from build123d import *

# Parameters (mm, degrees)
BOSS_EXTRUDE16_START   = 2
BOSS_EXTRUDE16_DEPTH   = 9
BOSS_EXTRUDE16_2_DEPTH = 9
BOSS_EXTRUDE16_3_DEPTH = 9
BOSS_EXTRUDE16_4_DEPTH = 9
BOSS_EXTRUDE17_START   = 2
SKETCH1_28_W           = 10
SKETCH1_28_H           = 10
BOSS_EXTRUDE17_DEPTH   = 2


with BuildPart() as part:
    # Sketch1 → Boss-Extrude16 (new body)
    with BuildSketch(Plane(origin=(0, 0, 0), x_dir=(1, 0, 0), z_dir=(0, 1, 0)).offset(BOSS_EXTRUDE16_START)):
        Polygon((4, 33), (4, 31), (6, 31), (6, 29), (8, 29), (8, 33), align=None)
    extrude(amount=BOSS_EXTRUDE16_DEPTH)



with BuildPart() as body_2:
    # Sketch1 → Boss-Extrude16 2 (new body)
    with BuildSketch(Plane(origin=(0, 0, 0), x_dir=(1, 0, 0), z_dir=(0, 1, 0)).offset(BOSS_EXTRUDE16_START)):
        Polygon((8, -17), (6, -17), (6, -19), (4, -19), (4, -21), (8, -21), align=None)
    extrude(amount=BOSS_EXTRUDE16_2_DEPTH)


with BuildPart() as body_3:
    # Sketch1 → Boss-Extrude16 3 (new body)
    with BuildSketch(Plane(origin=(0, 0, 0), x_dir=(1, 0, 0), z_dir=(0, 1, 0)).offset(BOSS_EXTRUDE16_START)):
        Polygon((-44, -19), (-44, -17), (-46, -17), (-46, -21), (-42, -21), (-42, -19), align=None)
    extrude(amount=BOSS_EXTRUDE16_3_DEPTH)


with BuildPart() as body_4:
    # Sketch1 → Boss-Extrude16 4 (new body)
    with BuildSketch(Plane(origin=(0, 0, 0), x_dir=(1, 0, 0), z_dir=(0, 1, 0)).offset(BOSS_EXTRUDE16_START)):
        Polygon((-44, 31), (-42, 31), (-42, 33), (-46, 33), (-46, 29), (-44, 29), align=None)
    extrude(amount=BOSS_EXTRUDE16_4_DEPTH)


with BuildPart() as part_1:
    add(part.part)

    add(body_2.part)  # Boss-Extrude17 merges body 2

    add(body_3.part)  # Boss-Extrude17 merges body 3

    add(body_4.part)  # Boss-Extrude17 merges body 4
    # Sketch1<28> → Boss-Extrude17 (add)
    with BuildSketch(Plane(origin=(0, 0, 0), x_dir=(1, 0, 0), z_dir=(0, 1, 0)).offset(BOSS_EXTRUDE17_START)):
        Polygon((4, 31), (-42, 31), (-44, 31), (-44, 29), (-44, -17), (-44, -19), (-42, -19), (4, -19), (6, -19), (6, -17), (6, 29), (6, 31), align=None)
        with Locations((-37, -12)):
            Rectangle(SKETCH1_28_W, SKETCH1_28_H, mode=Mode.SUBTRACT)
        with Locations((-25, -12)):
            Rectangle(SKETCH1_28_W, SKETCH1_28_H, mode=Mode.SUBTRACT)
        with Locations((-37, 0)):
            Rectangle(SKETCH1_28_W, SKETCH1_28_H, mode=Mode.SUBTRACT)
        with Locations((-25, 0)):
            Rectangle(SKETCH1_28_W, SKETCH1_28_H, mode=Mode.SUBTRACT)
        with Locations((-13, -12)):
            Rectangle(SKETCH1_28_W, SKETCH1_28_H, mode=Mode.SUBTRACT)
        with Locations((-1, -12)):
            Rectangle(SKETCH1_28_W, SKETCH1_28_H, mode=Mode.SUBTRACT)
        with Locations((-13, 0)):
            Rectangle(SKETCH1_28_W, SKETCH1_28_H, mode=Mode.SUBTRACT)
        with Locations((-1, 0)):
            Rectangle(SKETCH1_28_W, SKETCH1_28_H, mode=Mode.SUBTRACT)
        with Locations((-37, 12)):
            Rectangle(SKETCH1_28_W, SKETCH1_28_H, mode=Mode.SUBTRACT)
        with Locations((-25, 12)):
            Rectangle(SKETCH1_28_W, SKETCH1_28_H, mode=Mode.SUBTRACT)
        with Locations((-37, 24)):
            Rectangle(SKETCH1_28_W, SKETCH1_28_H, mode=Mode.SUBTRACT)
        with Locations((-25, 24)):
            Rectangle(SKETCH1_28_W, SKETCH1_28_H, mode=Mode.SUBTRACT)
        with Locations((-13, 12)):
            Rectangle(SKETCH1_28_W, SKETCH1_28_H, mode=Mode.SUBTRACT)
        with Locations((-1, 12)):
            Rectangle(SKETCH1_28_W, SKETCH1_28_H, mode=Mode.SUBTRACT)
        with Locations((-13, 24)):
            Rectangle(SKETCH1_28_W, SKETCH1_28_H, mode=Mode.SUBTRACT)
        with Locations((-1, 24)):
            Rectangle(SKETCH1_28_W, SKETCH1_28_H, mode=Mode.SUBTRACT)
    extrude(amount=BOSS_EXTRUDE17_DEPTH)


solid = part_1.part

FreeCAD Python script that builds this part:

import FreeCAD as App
import Part
import Sketcher

V = App.Vector

doc = App.newDocument("Part")
body = doc.addObject("PartDesign::Body", "Body")

# Sketch on XZ plane
sketch1 = body.newObject("Sketcher::SketchObject", "Sketch")
sketch1.AttachmentSupport = (doc.getObject("XZ_Plane"), [""])
sketch1.MapMode = "FlatFace"
sketch1.AttachmentOffset = App.Placement(V(0, 0, -2), App.Rotation())
sketch1.addGeometry([
    Part.LineSegment(V(4, -33, 0), V(4, -31, 0)),  # 0
    Part.LineSegment(V(4, -31, 0), V(6, -31, 0)),  # 1
    Part.LineSegment(V(6, -31, 0), V(6, -29, 0)),  # 2
    Part.LineSegment(V(6, -29, 0), V(8, -29, 0)),  # 3
    Part.LineSegment(V(8, -29, 0), V(8, -33, 0)),  # 4
    Part.LineSegment(V(8, -33, 0), V(4, -33, 0)),  # 5
], False)
sketch1.addConstraint([
    Sketcher.Constraint("Coincident", 0, 2, 1, 1),
    Sketcher.Constraint("Coincident", 1, 2, 2, 1),
    Sketcher.Constraint("Coincident", 2, 2, 3, 1),
    Sketcher.Constraint("Coincident", 3, 2, 4, 1),
    Sketcher.Constraint("Coincident", 4, 2, 5, 1),
    Sketcher.Constraint("Coincident", 5, 2, 0, 1),
    Sketcher.Constraint("Vertical", 0),
    Sketcher.Constraint("Horizontal", 1),
    Sketcher.Constraint("Vertical", 2),
    Sketcher.Constraint("Horizontal", 3),
    Sketcher.Constraint("Vertical", 4),
    Sketcher.Constraint("Horizontal", 5),
    Sketcher.Constraint("Equal", 1, 3),
    Sketcher.Constraint("Equal", 3, 0),
    Sketcher.Constraint("Equal", 0, 2),
    Sketcher.Constraint("DistanceX", 1, 1, 1, 2, 2.0),
    Sketcher.Constraint("DistanceX", -1, 1, 0, 2, 4.0),
    Sketcher.Constraint("DistanceY", 0, 2, -1, 1, 31.0),
])
pad1 = body.newObject("PartDesign::Pad", "Pad")
pad1.Profile = sketch1
pad1.Length = 9
pad1.Reversed = True
body2 = doc.addObject("PartDesign::Body", "Body001")

# Sketch on XZ plane
sketch2 = body2.newObject("Sketcher::SketchObject", "Sketch001")
sketch2.AttachmentSupport = (doc.getObject("XZ_Plane001"), [""])
sketch2.MapMode = "FlatFace"
sketch2.AttachmentOffset = App.Placement(V(0, 0, -2), App.Rotation())
sketch2.addGeometry([
    Part.LineSegment(V(8, 17, 0), V(6, 17, 0)),  # 0
    Part.LineSegment(V(6, 17, 0), V(6, 19, 0)),  # 1
    Part.LineSegment(V(6, 19, 0), V(4, 19, 0)),  # 2
    Part.LineSegment(V(4, 19, 0), V(4, 21, 0)),  # 3
    Part.LineSegment(V(4, 21, 0), V(8, 21, 0)),  # 4
    Part.LineSegment(V(8, 21, 0), V(8, 17, 0)),  # 5
], False)
sketch2.addConstraint([
    Sketcher.Constraint("Coincident", 0, 2, 1, 1),
    Sketcher.Constraint("Coincident", 1, 2, 2, 1),
    Sketcher.Constraint("Coincident", 2, 2, 3, 1),
    Sketcher.Constraint("Coincident", 3, 2, 4, 1),
    Sketcher.Constraint("Coincident", 4, 2, 5, 1),
    Sketcher.Constraint("Coincident", 5, 2, 0, 1),
    Sketcher.Constraint("Horizontal", 0),
    Sketcher.Constraint("Vertical", 1),
    Sketcher.Constraint("Horizontal", 2),
    Sketcher.Constraint("Vertical", 3),
    Sketcher.Constraint("Horizontal", 4),
    Sketcher.Constraint("Vertical", 5),
    Sketcher.Constraint("Equal", 0, 2),
    Sketcher.Constraint("Equal", 2, 1),
    Sketcher.Constraint("Equal", 1, 3),
    Sketcher.Constraint("DistanceX", 0, 2, 0, 1, 2.0),
    Sketcher.Constraint("DistanceX", -1, 1, 0, 2, 6.0),
    Sketcher.Constraint("DistanceY", -1, 1, 0, 2, 17.0),
])
pad2 = body2.newObject("PartDesign::Pad", "Pad001")
pad2.Profile = sketch2
pad2.Length = 9
pad2.Reversed = True
body3 = doc.addObject("PartDesign::Body", "Body002")

# Sketch on XZ plane
sketch3 = body3.newObject("Sketcher::SketchObject", "Sketch002")
sketch3.AttachmentSupport = (doc.getObject("XZ_Plane002"), [""])
sketch3.MapMode = "FlatFace"
sketch3.AttachmentOffset = App.Placement(V(0, 0, -2), App.Rotation())
sketch3.addGeometry([
    Part.LineSegment(V(-44, 19, 0), V(-44, 17, 0)),  # 0
    Part.LineSegment(V(-44, 17, 0), V(-46, 17, 0)),  # 1
    Part.LineSegment(V(-46, 17, 0), V(-46, 21, 0)),  # 2
    Part.LineSegment(V(-46, 21, 0), V(-42, 21, 0)),  # 3
    Part.LineSegment(V(-42, 21, 0), V(-42, 19, 0)),  # 4
    Part.LineSegment(V(-42, 19, 0), V(-44, 19, 0)),  # 5
], False)
sketch3.addConstraint([
    Sketcher.Constraint("Coincident", 0, 2, 1, 1),
    Sketcher.Constraint("Coincident", 1, 2, 2, 1),
    Sketcher.Constraint("Coincident", 2, 2, 3, 1),
    Sketcher.Constraint("Coincident", 3, 2, 4, 1),
    Sketcher.Constraint("Coincident", 4, 2, 5, 1),
    Sketcher.Constraint("Coincident", 5, 2, 0, 1),
    Sketcher.Constraint("Vertical", 0),
    Sketcher.Constraint("Horizontal", 1),
    Sketcher.Constraint("Vertical", 2),
    Sketcher.Constraint("Horizontal", 3),
    Sketcher.Constraint("Vertical", 4),
    Sketcher.Constraint("Horizontal", 5),
    Sketcher.Constraint("Equal", 1, 5),
    Sketcher.Constraint("Equal", 5, 0),
    Sketcher.Constraint("Equal", 3, 2),
    Sketcher.Constraint("DistanceX", 1, 2, 1, 1, 2.0),
    Sketcher.Constraint("DistanceX", 0, 2, -1, 1, 44.0),
    Sketcher.Constraint("DistanceY", -1, 1, 0, 2, 17.0),
])
pad3 = body3.newObject("PartDesign::Pad", "Pad002")
pad3.Profile = sketch3
pad3.Length = 9
pad3.Reversed = True
body4 = doc.addObject("PartDesign::Body", "Body003")

# Sketch on XZ plane
sketch4 = body4.newObject("Sketcher::SketchObject", "Sketch003")
sketch4.AttachmentSupport = (doc.getObject("XZ_Plane003"), [""])
sketch4.MapMode = "FlatFace"
sketch4.AttachmentOffset = App.Placement(V(0, 0, -2), App.Rotation())
sketch4.addGeometry([
    Part.LineSegment(V(-44, -31, 0), V(-42, -31, 0)),  # 0
    Part.LineSegment(V(-42, -31, 0), V(-42, -33, 0)),  # 1
    Part.LineSegment(V(-42, -33, 0), V(-46, -33, 0)),  # 2
    Part.LineSegment(V(-46, -33, 0), V(-46, -29, 0)),  # 3
    Part.LineSegment(V(-46, -29, 0), V(-44, -29, 0)),  # 4
    Part.LineSegment(V(-44, -29, 0), V(-44, -31, 0)),  # 5
], False)
sketch4.addConstraint([
    Sketcher.Constraint("Coincident", 0, 2, 1, 1),
    Sketcher.Constraint("Coincident", 1, 2, 2, 1),
    Sketcher.Constraint("Coincident", 2, 2, 3, 1),
    Sketcher.Constraint("Coincident", 3, 2, 4, 1),
    Sketcher.Constraint("Coincident", 4, 2, 5, 1),
    Sketcher.Constraint("Coincident", 5, 2, 0, 1),
    Sketcher.Constraint("Horizontal", 0),
    Sketcher.Constraint("Vertical", 1),
    Sketcher.Constraint("Horizontal", 2),
    Sketcher.Constraint("Vertical", 3),
    Sketcher.Constraint("Horizontal", 4),
    Sketcher.Constraint("Vertical", 5),
    Sketcher.Constraint("Equal", 0, 4),
    Sketcher.Constraint("Equal", 4, 1),
    Sketcher.Constraint("Equal", 2, 3),
    Sketcher.Constraint("DistanceX", 0, 1, 0, 2, 2.0),
    Sketcher.Constraint("DistanceX", 0, 2, -1, 1, 42.0),
    Sketcher.Constraint("DistanceY", 0, 2, -1, 1, 31.0),
])
pad4 = body4.newObject("PartDesign::Pad", "Pad003")
pad4.Profile = sketch4
pad4.Length = 9
pad4.Reversed = True
body.AllowCompound = True
doc.recompute()

boolean = body.newObject("PartDesign::Boolean", "Boolean")
boolean.Type = "Fuse"
boolean.addObjects([body2])
doc.recompute()

boolean2 = body.newObject("PartDesign::Boolean", "Boolean001")
boolean2.Type = "Fuse"
boolean2.addObjects([body3])
doc.recompute()

boolean3 = body.newObject("PartDesign::Boolean", "Boolean002")
boolean3.Type = "Fuse"
boolean3.addObjects([body4])

# Sketch on XZ plane
sketch5 = body.newObject("Sketcher::SketchObject", "Sketch004")
sketch5.AttachmentSupport = (doc.getObject("XZ_Plane"), [""])
sketch5.MapMode = "FlatFace"
sketch5.AttachmentOffset = App.Placement(V(0, 0, -2), App.Rotation())
sketch5.addGeometry([
    Part.LineSegment(V(-44, -31, 0), V(-44, 19, 0)),  # 0
    Part.LineSegment(V(-44, 19, 0), V(6, 19, 0)),  # 1
    Part.LineSegment(V(6, 19, 0), V(6, -31, 0)),  # 2
    Part.LineSegment(V(6, -31, 0), V(-44, -31, 0)),  # 3
    Part.LineSegment(V(-32, 17, 0), V(-42, 17, 0)),  # 4
    Part.LineSegment(V(-42, 17, 0), V(-42, 7, 0)),  # 5
    Part.LineSegment(V(-42, 7, 0), V(-32, 7, 0)),  # 6
    Part.LineSegment(V(-32, 7, 0), V(-32, 17, 0)),  # 7
    Part.LineSegment(V(-20, 17, 0), V(-30, 17, 0)),  # 8
    Part.LineSegment(V(-30, 17, 0), V(-30, 7, 0)),  # 9
    Part.LineSegment(V(-30, 7, 0), V(-20, 7, 0)),  # 10
    Part.LineSegment(V(-20, 7, 0), V(-20, 17, 0)),  # 11
    Part.LineSegment(V(-32, 5, 0), V(-42, 5, 0)),  # 12
    Part.LineSegment(V(-42, 5, 0), V(-42, -5, 0)),  # 13
    Part.LineSegment(V(-42, -5, 0), V(-32, -5, 0)),  # 14
    Part.LineSegment(V(-32, -5, 0), V(-32, 5, 0)),  # 15
    Part.LineSegment(V(-20, 5, 0), V(-30, 5, 0)),  # 16
    Part.LineSegment(V(-30, 5, 0), V(-30, -5, 0)),  # 17
    Part.LineSegment(V(-30, -5, 0), V(-20, -5, 0)),  # 18
    Part.LineSegment(V(-20, -5, 0), V(-20, 5, 0)),  # 19
    Part.LineSegment(V(-8, 17, 0), V(-18, 17, 0)),  # 20
    Part.LineSegment(V(-18, 17, 0), V(-18, 7, 0)),  # 21
    Part.LineSegment(V(-18, 7, 0), V(-8, 7, 0)),  # 22
    Part.LineSegment(V(-8, 7, 0), V(-8, 17, 0)),  # 23
    Part.LineSegment(V(4, 17, 0), V(-6, 17, 0)),  # 24
    Part.LineSegment(V(-6, 17, 0), V(-6, 7, 0)),  # 25
    Part.LineSegment(V(-6, 7, 0), V(4, 7, 0)),  # 26
    Part.LineSegment(V(4, 7, 0), V(4, 17, 0)),  # 27
    Part.LineSegment(V(-8, 5, 0), V(-18, 5, 0)),  # 28
    Part.LineSegment(V(-18, 5, 0), V(-18, -5, 0)),  # 29
    Part.LineSegment(V(-18, -5, 0), V(-8, -5, 0)),  # 30
    Part.LineSegment(V(-8, -5, 0), V(-8, 5, 0)),  # 31
    Part.LineSegment(V(4, 5, 0), V(-6, 5, 0)),  # 32
    Part.LineSegment(V(-6, 5, 0), V(-6, -5, 0)),  # 33
    Part.LineSegment(V(-6, -5, 0), V(4, -5, 0)),  # 34
    Part.LineSegment(V(4, -5, 0), V(4, 5, 0)),  # 35
    Part.LineSegment(V(-32, -7, 0), V(-42, -7, 0)),  # 36
    Part.LineSegment(V(-42, -7, 0), V(-42, -17, 0)),  # 37
    Part.LineSegment(V(-42, -17, 0), V(-32, -17, 0)),  # 38
    Part.LineSegment(V(-32, -17, 0), V(-32, -7, 0)),  # 39
    Part.LineSegment(V(-20, -7, 0), V(-30, -7, 0)),  # 40
    Part.LineSegment(V(-30, -7, 0), V(-30, -17, 0)),  # 41
    Part.LineSegment(V(-30, -17, 0), V(-20, -17, 0)),  # 42
    Part.LineSegment(V(-20, -17, 0), V(-20, -7, 0)),  # 43
    Part.LineSegment(V(-32, -19, 0), V(-42, -19, 0)),  # 44
    Part.LineSegment(V(-42, -19, 0), V(-42, -29, 0)),  # 45
    Part.LineSegment(V(-42, -29, 0), V(-32, -29, 0)),  # 46
    Part.LineSegment(V(-32, -29, 0), V(-32, -19, 0)),  # 47
    Part.LineSegment(V(-20, -19, 0), V(-30, -19, 0)),  # 48
    Part.LineSegment(V(-30, -19, 0), V(-30, -29, 0)),  # 49
    Part.LineSegment(V(-30, -29, 0), V(-20, -29, 0)),  # 50
    Part.LineSegment(V(-20, -29, 0), V(-20, -19, 0)),  # 51
    Part.LineSegment(V(-8, -7, 0), V(-18, -7, 0)),  # 52
    Part.LineSegment(V(-18, -7, 0), V(-18, -17, 0)),  # 53
    Part.LineSegment(V(-18, -17, 0), V(-8, -17, 0)),  # 54
    Part.LineSegment(V(-8, -17, 0), V(-8, -7, 0)),  # 55
    Part.LineSegment(V(4, -7, 0), V(-6, -7, 0)),  # 56
    Part.LineSegment(V(-6, -7, 0), V(-6, -17, 0)),  # 57
    Part.LineSegment(V(-6, -17, 0), V(4, -17, 0)),  # 58
    Part.LineSegment(V(4, -17, 0), V(4, -7, 0)),  # 59
    Part.LineSegment(V(-8, -19, 0), V(-18, -19, 0)),  # 60
    Part.LineSegment(V(-18, -19, 0), V(-18, -29, 0)),  # 61
    Part.LineSegment(V(-18, -29, 0), V(-8, -29, 0)),  # 62
    Part.LineSegment(V(-8, -29, 0), V(-8, -19, 0)),  # 63
    Part.LineSegment(V(4, -19, 0), V(-6, -19, 0)),  # 64
    Part.LineSegment(V(-6, -19, 0), V(-6, -29, 0)),  # 65
    Part.LineSegment(V(-6, -29, 0), V(4, -29, 0)),  # 66
    Part.LineSegment(V(4, -29, 0), V(4, -19, 0)),  # 67
], False)
sketch5.addConstraint([
    Sketcher.Constraint("Coincident", 0, 2, 1, 1),
    Sketcher.Constraint("Coincident", 1, 2, 2, 1),
    Sketcher.Constraint("Coincident", 2, 2, 3, 1),
    Sketcher.Constraint("Coincident", 3, 2, 0, 1),
    Sketcher.Constraint("Coincident", 4, 2, 5, 1),
    Sketcher.Constraint("Coincident", 5, 2, 6, 1),
    Sketcher.Constraint("Coincident", 6, 2, 7, 1),
    Sketcher.Constraint("Coincident", 7, 2, 4, 1),
    Sketcher.Constraint("Coincident", 8, 2, 9, 1),
    Sketcher.Constraint("Coincident", 9, 2, 10, 1),
    Sketcher.Constraint("Coincident", 10, 2, 11, 1),
    Sketcher.Constraint("Coincident", 11, 2, 8, 1),
    Sketcher.Constraint("Coincident", 12, 2, 13, 1),
    Sketcher.Constraint("Coincident", 13, 2, 14, 1),
    Sketcher.Constraint("Coincident", 14, 2, 15, 1),
    Sketcher.Constraint("Coincident", 15, 2, 12, 1),
    Sketcher.Constraint("Coincident", 16, 2, 17, 1),
    Sketcher.Constraint("Coincident", 17, 2, 18, 1),
    Sketcher.Constraint("Coincident", 18, 2, 19, 1),
    Sketcher.Constraint("Coincident", 19, 2, 16, 1),
    Sketcher.Constraint("Coincident", 20, 2, 21, 1),
    Sketcher.Constraint("Coincident", 21, 2, 22, 1),
    Sketcher.Constraint("Coincident", 22, 2, 23, 1),
    Sketcher.Constraint("Coincident", 23, 2, 20, 1),
    Sketcher.Constraint("Coincident", 24, 2, 25, 1),
    Sketcher.Constraint("Coincident", 25, 2, 26, 1),
    Sketcher.Constraint("Coincident", 26, 2, 27, 1),
    Sketcher.Constraint("Coincident", 27, 2, 24, 1),
    Sketcher.Constraint("Coincident", 28, 2, 29, 1),
    Sketcher.Constraint("Coincident", 29, 2, 30, 1),
    Sketcher.Constraint("Coincident", 30, 2, 31, 1),
    Sketcher.Constraint("Coincident", 31, 2, 28, 1),
    Sketcher.Constraint("Coincident", 32, 2, 33, 1),
    Sketcher.Constraint("Coincident", 33, 2, 34, 1),
    Sketcher.Constraint("Coincident", 34, 2, 35, 1),
    Sketcher.Constraint("Coincident", 35, 2, 32, 1),
    Sketcher.Constraint("Coincident", 36, 2, 37, 1),
    Sketcher.Constraint("Coincident", 37, 2, 38, 1),
    Sketcher.Constraint("Coincident", 38, 2, 39, 1),
    Sketcher.Constraint("Coincident", 39, 2, 36, 1),
    Sketcher.Constraint("Coincident", 40, 2, 41, 1),
    Sketcher.Constraint("Coincident", 41, 2, 42, 1),
    Sketcher.Constraint("Coincident", 42, 2, 43, 1),
    Sketcher.Constraint("Coincident", 43, 2, 40, 1),
    Sketcher.Constraint("Coincident", 44, 2, 45, 1),
    Sketcher.Constraint("Coincident", 45, 2, 46, 1),
    Sketcher.Constraint("Coincident", 46, 2, 47, 1),
    Sketcher.Constraint("Coincident", 47, 2, 44, 1),
    Sketcher.Constraint("Coincident", 48, 2, 49, 1),
    Sketcher.Constraint("Coincident", 49, 2, 50, 1),
    Sketcher.Constraint("Coincident", 50, 2, 51, 1),
    Sketcher.Constraint("Coincident", 51, 2, 48, 1),
    Sketcher.Constraint("Coincident", 52, 2, 53, 1),
    Sketcher.Constraint("Coincident", 53, 2, 54, 1),
    Sketcher.Constraint("Coincident", 54, 2, 55, 1),
    Sketcher.Constraint("Coincident", 55, 2, 52, 1),
    Sketcher.Constraint("Coincident", 56, 2, 57, 1),
    Sketcher.Constraint("Coincident", 57, 2, 58, 1),
    Sketcher.Constraint("Coincident", 58, 2, 59, 1),
    Sketcher.Constraint("Coincident", 59, 2, 56, 1),
    Sketcher.Constraint("Coincident", 60, 2, 61, 1),
    Sketcher.Constraint("Coincident", 61, 2, 62, 1),
    Sketcher.Constraint("Coincident", 62, 2, 63, 1),
    Sketcher.Constraint("Coincident", 63, 2, 60, 1),
    Sketcher.Constraint("Coincident", 64, 2, 65, 1),
    Sketcher.Constraint("Coincident", 65, 2, 66, 1),
    Sketcher.Constraint("Coincident", 66, 2, 67, 1),
    Sketcher.Constraint("Coincident", 67, 2, 64, 1),
    Sketcher.Constraint("Vertical", 0),
    Sketcher.Constraint("Horizontal", 1),
    Sketcher.Constraint("Vertical", 2),
    Sketcher.Constraint("Horizontal", 3),
    Sketcher.Constraint("Horizontal", 4),
    Sketcher.Constraint("Vertical", 5),
    Sketcher.Constraint("Horizontal", 6),
    Sketcher.Constraint("Vertical", 7),
    Sketcher.Constraint("Horizontal", 8),
    Sketcher.Constraint("Vertical", 9),
    Sketcher.Constraint("Horizontal", 10),
    Sketcher.Constraint("Vertical", 11),
    Sketcher.Constraint("Horizontal", 12),
    Sketcher.Constraint("Vertical", 13),
    Sketcher.Constraint("Horizontal", 14),
    Sketcher.Constraint("Vertical", 15),
    Sketcher.Constraint("Horizontal", 16),
    Sketcher.Constraint("Vertical", 17),
    Sketcher.Constraint("Horizontal", 18),
    Sketcher.Constraint("Vertical", 19),
    Sketcher.Constraint("Horizontal", 20),
    Sketcher.Constraint("Vertical", 21),
    Sketcher.Constraint("Horizontal", 22),
    Sketcher.Constraint("Vertical", 23),
    Sketcher.Constraint("Horizontal", 24),
    Sketcher.Constraint("Vertical", 25),
    Sketcher.Constraint("Horizontal", 26),
    Sketcher.Constraint("Vertical", 27),
    Sketcher.Constraint("Horizontal", 28),
    Sketcher.Constraint("Vertical", 29),
    Sketcher.Constraint("Horizontal", 30),
    Sketcher.Constraint("Vertical", 31),
    Sketcher.Constraint("Horizontal", 32),
    Sketcher.Constraint("Vertical", 33),
    Sketcher.Constraint("Horizontal", 34),
    Sketcher.Constraint("Vertical", 35),
    Sketcher.Constraint("Horizontal", 36),
    Sketcher.Constraint("Vertical", 37),
    Sketcher.Constraint("Horizontal", 38),
    Sketcher.Constraint("Vertical", 39),
    Sketcher.Constraint("Horizontal", 40),
    Sketcher.Constraint("Vertical", 41),
    Sketcher.Constraint("Horizontal", 42),
    Sketcher.Constraint("Vertical", 43),
    Sketcher.Constraint("Horizontal", 44),
    Sketcher.Constraint("Vertical", 45),
    Sketcher.Constraint("Horizontal", 46),
    Sketcher.Constraint("Vertical", 47),
    Sketcher.Constraint("Horizontal", 48),
    Sketcher.Constraint("Vertical", 49),
    Sketcher.Constraint("Horizontal", 50),
    Sketcher.Constraint("Vertical", 51),
    Sketcher.Constraint("Horizontal", 52),
    Sketcher.Constraint("Vertical", 53),
    Sketcher.Constraint("Horizontal", 54),
    Sketcher.Constraint("Vertical", 55),
    Sketcher.Constraint("Horizontal", 56),
    Sketcher.Constraint("Vertical", 57),
    Sketcher.Constraint("Horizontal", 58),
    Sketcher.Constraint("Vertical", 59),
    Sketcher.Constraint("Horizontal", 60),
    Sketcher.Constraint("Vertical", 61),
    Sketcher.Constraint("Horizontal", 62),
    Sketcher.Constraint("Vertical", 63),
    Sketcher.Constraint("Horizontal", 64),
    Sketcher.Constraint("Vertical", 65),
    Sketcher.Constraint("Horizontal", 66),
    Sketcher.Constraint("Vertical", 67),
    Sketcher.Constraint("Symmetric", 1, 2, 64, 2, -1, 1),
    Sketcher.Constraint("Symmetric", 5, 2, 36, 2, -1),
    Sketcher.Constraint("Symmetric", 7, 2, 38, 2, -1),
    Sketcher.Constraint("Symmetric", 9, 2, 40, 2, -1),
    Sketcher.Constraint("Symmetric", 11, 2, 42, 2, -1),
    Sketcher.Constraint("Symmetric", 21, 2, 52, 2, -1),
    Sketcher.Constraint("Symmetric", 23, 2, 54, 2, -1),
    Sketcher.Constraint("Symmetric", 25, 2, 56, 2, -1),
    Sketcher.Constraint("Symmetric", 27, 2, 58, 2, -1),
    Sketcher.Constraint("Horizontal", 7, 2, 8, 2),
    Sketcher.Constraint("Horizontal", 6, 2, 9, 2),
    Sketcher.Constraint("Horizontal", 15, 2, 16, 2),
    Sketcher.Constraint("Horizontal", 14, 2, 17, 2),
    Sketcher.Constraint("Horizontal", 11, 2, 20, 2),
    Sketcher.Constraint("Horizontal", 10, 2, 21, 2),
    Sketcher.Constraint("Horizontal", 23, 2, 24, 2),
    Sketcher.Constraint("Horizontal", 22, 2, 25, 2),
    Sketcher.Constraint("Horizontal", 19, 2, 28, 2),
    Sketcher.Constraint("Horizontal", 18, 2, 29, 2),
    Sketcher.Constraint("Horizontal", 31, 2, 32, 2),
    Sketcher.Constraint("Horizontal", 30, 2, 33, 2),
    Sketcher.Constraint("Horizontal", 47, 2, 48, 2),
    Sketcher.Constraint("Horizontal", 46, 2, 49, 2),
    Sketcher.Constraint("Horizontal", 51, 2, 60, 2),
    Sketcher.Constraint("Horizontal", 50, 2, 61, 2),
    Sketcher.Constraint("Horizontal", 63, 2, 64, 2),
    Sketcher.Constraint("Horizontal", 62, 2, 65, 2),
    Sketcher.Constraint("Vertical", 5, 2, 12, 2),
    Sketcher.Constraint("Vertical", 7, 2, 14, 2),
    Sketcher.Constraint("Vertical", 9, 2, 16, 2),
    Sketcher.Constraint("Vertical", 11, 2, 18, 2),
    Sketcher.Constraint("Vertical", 21, 2, 28, 2),
    Sketcher.Constraint("Vertical", 23, 2, 30, 2),
    Sketcher.Constraint("Vertical", 25, 2, 32, 2),
    Sketcher.Constraint("Vertical", 27, 2, 34, 2),
    Sketcher.Constraint("Vertical", 37, 2, 44, 2),
    Sketcher.Constraint("Vertical", 39, 2, 46, 2),
    Sketcher.Constraint("Vertical", 41, 2, 48, 2),
    Sketcher.Constraint("Vertical", 43, 2, 50, 2),
    Sketcher.Constraint("Vertical", 53, 2, 60, 2),
    Sketcher.Constraint("Vertical", 55, 2, 62, 2),
    Sketcher.Constraint("Vertical", 57, 2, 64, 2),
    Sketcher.Constraint("Vertical", 59, 2, 66, 2),
    Sketcher.Constraint("Equal", 6, 8),
    Sketcher.Constraint("Equal", 18, 20),
    Sketcher.Constraint("Equal", 22, 24),
    Sketcher.Constraint("Equal", 3, 0),
    Sketcher.Constraint("Equal", 66, 5),
    Sketcher.Constraint("Equal", 11, 13),
    Sketcher.Constraint("Equal", 43, 45),
    Sketcher.Constraint("DistanceX", 1, 1, 1, 2, 50.0),
    Sketcher.Constraint("DistanceX", 4, 2, 4, 1, 10.0),
    Sketcher.Constraint("DistanceX", 0, 2, -1, 1, 44.0),
    Sketcher.Constraint("DistanceY", -1, 1, 0, 2, 19.0),
    Sketcher.Constraint("DistanceX", 4, 2, -1, 1, 42.0),
    Sketcher.Constraint("DistanceY", -1, 1, 4, 2, 17.0),
    Sketcher.Constraint("DistanceX", 8, 2, -1, 1, 30.0),
    Sketcher.Constraint("DistanceY", -1, 1, 12, 2, 5.0),
    Sketcher.Constraint("DistanceX", 20, 2, -1, 1, 18.0),
])
pad5 = body.newObject("PartDesign::Pad", "Pad004")
pad5.Profile = sketch5
pad5.Length = 2
pad5.Reversed = True

doc.recompute()
